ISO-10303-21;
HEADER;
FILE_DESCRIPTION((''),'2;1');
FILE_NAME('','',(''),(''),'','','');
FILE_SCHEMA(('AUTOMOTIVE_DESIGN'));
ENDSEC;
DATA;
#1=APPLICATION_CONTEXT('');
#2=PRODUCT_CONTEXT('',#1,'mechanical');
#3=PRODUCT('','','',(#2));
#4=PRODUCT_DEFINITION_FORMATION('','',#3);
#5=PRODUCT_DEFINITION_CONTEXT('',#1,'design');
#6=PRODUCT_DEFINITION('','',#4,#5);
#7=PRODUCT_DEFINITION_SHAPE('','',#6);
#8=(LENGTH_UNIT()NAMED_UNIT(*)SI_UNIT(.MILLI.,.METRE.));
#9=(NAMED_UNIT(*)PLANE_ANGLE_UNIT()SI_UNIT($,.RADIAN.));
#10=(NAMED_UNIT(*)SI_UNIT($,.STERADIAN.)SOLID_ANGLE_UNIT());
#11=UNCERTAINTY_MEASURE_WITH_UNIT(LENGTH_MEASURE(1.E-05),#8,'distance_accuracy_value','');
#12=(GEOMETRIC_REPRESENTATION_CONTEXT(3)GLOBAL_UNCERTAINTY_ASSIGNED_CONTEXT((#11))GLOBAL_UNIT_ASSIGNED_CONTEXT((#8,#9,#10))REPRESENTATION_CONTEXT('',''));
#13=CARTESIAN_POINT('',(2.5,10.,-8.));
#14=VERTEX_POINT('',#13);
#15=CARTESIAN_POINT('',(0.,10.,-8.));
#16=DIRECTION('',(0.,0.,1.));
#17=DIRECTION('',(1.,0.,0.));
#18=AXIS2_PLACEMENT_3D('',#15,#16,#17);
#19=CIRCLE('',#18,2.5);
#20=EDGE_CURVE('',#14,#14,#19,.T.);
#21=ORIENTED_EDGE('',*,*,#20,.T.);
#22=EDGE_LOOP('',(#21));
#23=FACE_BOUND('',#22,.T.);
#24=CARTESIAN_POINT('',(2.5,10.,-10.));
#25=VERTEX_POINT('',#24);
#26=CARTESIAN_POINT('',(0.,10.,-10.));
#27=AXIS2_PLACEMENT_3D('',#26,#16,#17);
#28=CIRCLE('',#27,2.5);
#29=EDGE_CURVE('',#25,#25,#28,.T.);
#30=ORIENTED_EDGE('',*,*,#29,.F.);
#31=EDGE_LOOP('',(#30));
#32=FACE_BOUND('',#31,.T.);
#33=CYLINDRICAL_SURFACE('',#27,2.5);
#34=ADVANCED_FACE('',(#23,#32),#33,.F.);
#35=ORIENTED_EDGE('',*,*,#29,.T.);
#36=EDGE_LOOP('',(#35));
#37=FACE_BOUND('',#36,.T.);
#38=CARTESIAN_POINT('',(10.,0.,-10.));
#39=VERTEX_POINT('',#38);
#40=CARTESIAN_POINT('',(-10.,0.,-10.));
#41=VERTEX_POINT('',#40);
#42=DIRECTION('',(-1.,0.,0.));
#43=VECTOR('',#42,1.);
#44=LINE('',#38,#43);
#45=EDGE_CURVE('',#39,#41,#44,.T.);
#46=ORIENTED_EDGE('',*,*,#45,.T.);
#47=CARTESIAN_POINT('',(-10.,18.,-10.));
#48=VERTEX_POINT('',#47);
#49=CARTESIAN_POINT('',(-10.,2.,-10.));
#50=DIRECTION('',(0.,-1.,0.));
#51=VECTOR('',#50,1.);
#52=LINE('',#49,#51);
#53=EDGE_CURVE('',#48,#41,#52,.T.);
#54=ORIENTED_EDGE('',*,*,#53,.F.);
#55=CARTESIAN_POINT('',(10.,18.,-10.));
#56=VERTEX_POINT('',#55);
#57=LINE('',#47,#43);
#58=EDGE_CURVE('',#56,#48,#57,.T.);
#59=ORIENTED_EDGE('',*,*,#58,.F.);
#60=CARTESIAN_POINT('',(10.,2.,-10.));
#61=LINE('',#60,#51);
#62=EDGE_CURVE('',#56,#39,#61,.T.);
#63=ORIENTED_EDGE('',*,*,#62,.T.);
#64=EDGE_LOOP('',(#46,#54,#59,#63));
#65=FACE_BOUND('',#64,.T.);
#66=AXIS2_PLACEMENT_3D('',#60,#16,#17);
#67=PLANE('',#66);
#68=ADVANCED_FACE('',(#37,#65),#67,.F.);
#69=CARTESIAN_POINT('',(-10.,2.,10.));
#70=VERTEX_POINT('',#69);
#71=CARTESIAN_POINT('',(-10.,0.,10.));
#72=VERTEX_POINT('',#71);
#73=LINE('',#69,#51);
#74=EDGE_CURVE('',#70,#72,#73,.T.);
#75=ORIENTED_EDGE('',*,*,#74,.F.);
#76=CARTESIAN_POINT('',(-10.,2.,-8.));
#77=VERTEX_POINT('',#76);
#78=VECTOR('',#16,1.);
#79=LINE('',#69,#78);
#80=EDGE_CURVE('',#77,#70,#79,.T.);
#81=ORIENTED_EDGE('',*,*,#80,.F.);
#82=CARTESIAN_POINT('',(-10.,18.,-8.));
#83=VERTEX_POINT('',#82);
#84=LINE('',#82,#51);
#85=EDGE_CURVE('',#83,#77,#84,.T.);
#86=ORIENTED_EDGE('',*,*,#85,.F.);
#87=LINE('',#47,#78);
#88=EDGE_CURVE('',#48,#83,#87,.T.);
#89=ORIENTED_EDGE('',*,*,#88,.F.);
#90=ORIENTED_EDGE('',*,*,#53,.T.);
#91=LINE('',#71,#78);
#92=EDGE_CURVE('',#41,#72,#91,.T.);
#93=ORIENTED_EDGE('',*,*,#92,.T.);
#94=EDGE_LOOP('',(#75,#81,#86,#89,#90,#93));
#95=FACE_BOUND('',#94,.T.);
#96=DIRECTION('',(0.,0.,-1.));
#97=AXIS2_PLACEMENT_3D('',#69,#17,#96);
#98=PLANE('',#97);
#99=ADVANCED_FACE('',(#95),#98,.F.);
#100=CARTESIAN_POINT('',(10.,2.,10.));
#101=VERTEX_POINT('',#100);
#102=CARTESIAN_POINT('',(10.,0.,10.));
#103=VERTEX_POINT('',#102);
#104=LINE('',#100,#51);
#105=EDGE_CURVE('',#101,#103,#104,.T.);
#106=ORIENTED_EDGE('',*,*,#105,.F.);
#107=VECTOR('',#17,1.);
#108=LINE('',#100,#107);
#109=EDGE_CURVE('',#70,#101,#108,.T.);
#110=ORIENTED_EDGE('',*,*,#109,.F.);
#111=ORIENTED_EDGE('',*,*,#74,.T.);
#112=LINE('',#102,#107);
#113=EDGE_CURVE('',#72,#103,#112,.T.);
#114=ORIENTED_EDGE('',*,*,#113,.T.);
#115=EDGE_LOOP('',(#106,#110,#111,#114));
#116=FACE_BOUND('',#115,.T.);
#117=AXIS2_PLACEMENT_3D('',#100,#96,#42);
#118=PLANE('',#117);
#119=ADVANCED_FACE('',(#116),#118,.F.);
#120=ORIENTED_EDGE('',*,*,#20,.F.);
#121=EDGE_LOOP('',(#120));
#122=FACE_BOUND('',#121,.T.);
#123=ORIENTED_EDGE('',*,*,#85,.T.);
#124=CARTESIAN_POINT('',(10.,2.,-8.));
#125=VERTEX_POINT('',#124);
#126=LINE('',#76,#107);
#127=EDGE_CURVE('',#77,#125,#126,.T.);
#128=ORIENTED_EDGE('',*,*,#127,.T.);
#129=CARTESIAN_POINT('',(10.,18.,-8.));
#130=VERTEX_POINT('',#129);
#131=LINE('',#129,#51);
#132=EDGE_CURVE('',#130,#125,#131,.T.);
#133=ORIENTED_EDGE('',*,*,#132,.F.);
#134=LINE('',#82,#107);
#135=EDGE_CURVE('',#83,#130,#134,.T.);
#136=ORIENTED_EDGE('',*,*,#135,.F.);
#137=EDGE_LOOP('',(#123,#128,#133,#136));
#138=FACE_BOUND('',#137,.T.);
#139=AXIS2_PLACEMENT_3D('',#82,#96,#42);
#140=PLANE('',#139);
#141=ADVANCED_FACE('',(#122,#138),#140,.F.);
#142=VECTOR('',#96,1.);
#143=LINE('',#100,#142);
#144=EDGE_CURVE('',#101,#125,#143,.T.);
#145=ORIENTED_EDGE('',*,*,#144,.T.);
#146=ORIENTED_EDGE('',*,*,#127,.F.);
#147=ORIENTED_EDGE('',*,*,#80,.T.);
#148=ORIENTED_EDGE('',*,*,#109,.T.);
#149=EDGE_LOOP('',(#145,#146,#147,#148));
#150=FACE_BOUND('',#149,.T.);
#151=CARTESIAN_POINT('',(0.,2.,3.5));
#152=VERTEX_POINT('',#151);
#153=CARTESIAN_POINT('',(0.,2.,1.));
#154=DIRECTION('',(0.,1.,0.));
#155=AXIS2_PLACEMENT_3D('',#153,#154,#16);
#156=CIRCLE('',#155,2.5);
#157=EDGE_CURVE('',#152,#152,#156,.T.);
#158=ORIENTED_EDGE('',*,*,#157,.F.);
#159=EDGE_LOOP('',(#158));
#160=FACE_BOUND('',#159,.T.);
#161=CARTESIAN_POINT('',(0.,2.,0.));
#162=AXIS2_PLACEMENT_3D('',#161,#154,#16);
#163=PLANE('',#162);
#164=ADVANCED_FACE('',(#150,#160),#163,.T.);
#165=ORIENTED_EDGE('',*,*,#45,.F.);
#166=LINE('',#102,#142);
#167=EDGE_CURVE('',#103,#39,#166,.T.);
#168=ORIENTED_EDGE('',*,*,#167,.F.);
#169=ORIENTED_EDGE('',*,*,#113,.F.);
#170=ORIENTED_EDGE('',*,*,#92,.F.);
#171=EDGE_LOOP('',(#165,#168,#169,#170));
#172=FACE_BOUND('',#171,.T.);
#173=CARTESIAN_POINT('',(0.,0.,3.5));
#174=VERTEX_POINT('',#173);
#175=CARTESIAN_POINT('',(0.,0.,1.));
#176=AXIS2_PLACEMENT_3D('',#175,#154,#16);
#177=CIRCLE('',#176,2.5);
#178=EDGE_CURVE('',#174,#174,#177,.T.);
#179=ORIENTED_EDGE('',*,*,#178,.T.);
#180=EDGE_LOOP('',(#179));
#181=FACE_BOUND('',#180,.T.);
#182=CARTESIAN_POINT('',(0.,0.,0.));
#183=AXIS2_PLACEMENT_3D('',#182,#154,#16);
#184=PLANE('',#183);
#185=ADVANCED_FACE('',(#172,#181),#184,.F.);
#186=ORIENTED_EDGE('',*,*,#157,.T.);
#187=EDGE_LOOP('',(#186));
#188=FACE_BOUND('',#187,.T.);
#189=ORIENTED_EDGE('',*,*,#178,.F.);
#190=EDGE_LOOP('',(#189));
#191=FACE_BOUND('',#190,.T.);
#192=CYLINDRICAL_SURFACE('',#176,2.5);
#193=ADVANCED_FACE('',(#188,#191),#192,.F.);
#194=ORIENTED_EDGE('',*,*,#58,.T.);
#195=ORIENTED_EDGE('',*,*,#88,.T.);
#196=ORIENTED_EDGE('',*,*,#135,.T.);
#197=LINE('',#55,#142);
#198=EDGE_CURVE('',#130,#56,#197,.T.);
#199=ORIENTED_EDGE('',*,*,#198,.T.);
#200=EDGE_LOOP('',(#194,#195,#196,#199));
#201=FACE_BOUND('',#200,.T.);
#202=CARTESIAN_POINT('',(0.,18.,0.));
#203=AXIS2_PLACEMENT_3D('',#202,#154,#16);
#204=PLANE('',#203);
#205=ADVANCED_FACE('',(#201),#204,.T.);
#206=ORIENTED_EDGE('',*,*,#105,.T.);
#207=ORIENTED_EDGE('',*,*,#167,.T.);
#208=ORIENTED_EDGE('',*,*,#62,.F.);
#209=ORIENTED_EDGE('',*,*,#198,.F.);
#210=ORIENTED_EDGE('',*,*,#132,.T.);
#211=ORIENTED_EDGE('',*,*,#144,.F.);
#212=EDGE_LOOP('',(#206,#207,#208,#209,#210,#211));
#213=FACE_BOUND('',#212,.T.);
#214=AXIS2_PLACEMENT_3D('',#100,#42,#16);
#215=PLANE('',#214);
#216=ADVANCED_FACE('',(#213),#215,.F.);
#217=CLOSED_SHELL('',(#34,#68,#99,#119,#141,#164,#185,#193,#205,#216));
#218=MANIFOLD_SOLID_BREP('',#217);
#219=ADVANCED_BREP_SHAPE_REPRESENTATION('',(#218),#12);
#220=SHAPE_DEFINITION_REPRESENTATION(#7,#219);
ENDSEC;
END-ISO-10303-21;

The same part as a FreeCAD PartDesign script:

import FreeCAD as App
import Part
import Sketcher


def add_polygon(sketch, points):
    """Adds a closed chain of lines whose ends are joined by coincident constraints."""
    first, n = sketch.GeometryCount, len(points)
    for a, b in zip(points, points[1:] + points[:1]):
        sketch.addGeometry(Part.LineSegment(App.Vector(*a, 0), App.Vector(*b, 0)), False)
    for i in range(n):
        sketch.addConstraint(Sketcher.Constraint("Coincident", first + i, 2, first + (i + 1) % n, 1))

doc = App.newDocument("Part")
body = doc.addObject("PartDesign::Body", "Body")

sketch1 = body.newObject("Sketcher::SketchObject", "Sketch")
sketch1.AttachmentSupport = (doc.getObject("XZ_Plane"), [""])
sketch1.MapMode = "FlatFace"
add_polygon(sketch1, [(-10, -10), (-10, 10), (10, 10), (10, -10)])
sketch1.addConstraint(Sketcher.Constraint("Vertical", 0))
sketch1.addConstraint(Sketcher.Constraint("Horizontal", 1))
sketch1.addConstraint(Sketcher.Constraint("Vertical", 2))
sketch1.addConstraint(Sketcher.Constraint("Horizontal", 3))
sketch1.addConstraint(Sketcher.Constraint("Symmetric", 0, 2, 2, 2, -1, 1))
sketch1.addConstraint(Sketcher.Constraint("Equal", 3, 0))
sketch1.addConstraint(Sketcher.Constraint("DistanceX", 1, 1, 1, 2, 20.0))
pad1 = body.newObject("PartDesign::Pad", "Pad")
pad1.Profile = sketch1
pad1.Length = 2
pad1.Reversed = True

sketch2 = body.newObject("Sketcher::SketchObject", "Sketch001")
sketch2.AttachmentSupport = (doc.getObject("XZ_Plane"), [""])
sketch2.MapMode = "FlatFace"
sketch2.AttachmentOffset = App.Placement(App.Vector(0, 0, -2), App.Rotation())
add_polygon(sketch2, [(-10, -10), (-10, -8), (10, -8), (10, -10)])
sketch2.addConstraint(Sketcher.Constraint("Vertical", 0))
sketch2.addConstraint(Sketcher.Constraint("Horizontal", 1))
sketch2.addConstraint(Sketcher.Constraint("Vertical", 2))
sketch2.addConstraint(Sketcher.Constraint("Horizontal", 3))
sketch2.addConstraint(Sketcher.Constraint("DistanceX", 1, 1, 1, 2, 20.0))
sketch2.addConstraint(Sketcher.Constraint("DistanceY", 0, 1, 0, 2, 2.0))
sketch2.addConstraint(Sketcher.Constraint("DistanceX", 0, 2, -1, 1, 10.0))
sketch2.addConstraint(Sketcher.Constraint("DistanceY", 0, 2, -1, 1, 8.0))
pad2 = body.newObject("PartDesign::Pad", "Pad001")
pad2.Profile = sketch2
pad2.Length = 16
pad2.Reversed = True

sketch3 = body.newObject("Sketcher::SketchObject", "Sketch002")
sketch3.AttachmentSupport = (doc.getObject("XZ_Plane"), [""])
sketch3.MapMode = "FlatFace"
sketch3.AttachmentOffset = App.Placement(App.Vector(0, 0, -2), App.Rotation())
sketch3.addGeometry(Part.Circle(App.Vector(0, 1, 0), App.Vector(0, 0, 1), 2.5), False)
sketch3.addConstraint(Sketcher.Constraint("PointOnObject", 0, 3, -2))
sketch3.addConstraint(Sketcher.Constraint("Diameter", 0, 5.0))
sketch3.addConstraint(Sketcher.Constraint("DistanceY", -1, 1, 0, 3, 1.0))
pocket1 = body.newObject("PartDesign::Pocket", "Pocket")
pocket1.Profile = sketch3
pocket1.Type = "ThroughAll"
pocket1.Reversed = True

sketch4 = body.newObject("Sketcher::SketchObject", "Sketch003")
sketch4.AttachmentSupport = (doc.getObject("XY_Plane"), [""])
sketch4.MapMode = "FlatFace"
sketch4.AttachmentOffset = App.Placement(App.Vector(0, 0, -8), App.Rotation())
sketch4.addGeometry(Part.Circle(App.Vector(0, 10, 0), App.Vector(0, 0, 1), 2.5), False)
sketch4.addConstraint(Sketcher.Constraint("PointOnObject", 0, 3, -2))
sketch4.addConstraint(Sketcher.Constraint("Diameter", 0, 5.0))
sketch4.addConstraint(Sketcher.Constraint("DistanceY", -1, 1, 0, 3, 10.0))
pocket2 = body.newObject("PartDesign::Pocket", "Pocket001")
pocket2.Profile = sketch4
pocket2.Type = "ThroughAll"

doc.recompute()
